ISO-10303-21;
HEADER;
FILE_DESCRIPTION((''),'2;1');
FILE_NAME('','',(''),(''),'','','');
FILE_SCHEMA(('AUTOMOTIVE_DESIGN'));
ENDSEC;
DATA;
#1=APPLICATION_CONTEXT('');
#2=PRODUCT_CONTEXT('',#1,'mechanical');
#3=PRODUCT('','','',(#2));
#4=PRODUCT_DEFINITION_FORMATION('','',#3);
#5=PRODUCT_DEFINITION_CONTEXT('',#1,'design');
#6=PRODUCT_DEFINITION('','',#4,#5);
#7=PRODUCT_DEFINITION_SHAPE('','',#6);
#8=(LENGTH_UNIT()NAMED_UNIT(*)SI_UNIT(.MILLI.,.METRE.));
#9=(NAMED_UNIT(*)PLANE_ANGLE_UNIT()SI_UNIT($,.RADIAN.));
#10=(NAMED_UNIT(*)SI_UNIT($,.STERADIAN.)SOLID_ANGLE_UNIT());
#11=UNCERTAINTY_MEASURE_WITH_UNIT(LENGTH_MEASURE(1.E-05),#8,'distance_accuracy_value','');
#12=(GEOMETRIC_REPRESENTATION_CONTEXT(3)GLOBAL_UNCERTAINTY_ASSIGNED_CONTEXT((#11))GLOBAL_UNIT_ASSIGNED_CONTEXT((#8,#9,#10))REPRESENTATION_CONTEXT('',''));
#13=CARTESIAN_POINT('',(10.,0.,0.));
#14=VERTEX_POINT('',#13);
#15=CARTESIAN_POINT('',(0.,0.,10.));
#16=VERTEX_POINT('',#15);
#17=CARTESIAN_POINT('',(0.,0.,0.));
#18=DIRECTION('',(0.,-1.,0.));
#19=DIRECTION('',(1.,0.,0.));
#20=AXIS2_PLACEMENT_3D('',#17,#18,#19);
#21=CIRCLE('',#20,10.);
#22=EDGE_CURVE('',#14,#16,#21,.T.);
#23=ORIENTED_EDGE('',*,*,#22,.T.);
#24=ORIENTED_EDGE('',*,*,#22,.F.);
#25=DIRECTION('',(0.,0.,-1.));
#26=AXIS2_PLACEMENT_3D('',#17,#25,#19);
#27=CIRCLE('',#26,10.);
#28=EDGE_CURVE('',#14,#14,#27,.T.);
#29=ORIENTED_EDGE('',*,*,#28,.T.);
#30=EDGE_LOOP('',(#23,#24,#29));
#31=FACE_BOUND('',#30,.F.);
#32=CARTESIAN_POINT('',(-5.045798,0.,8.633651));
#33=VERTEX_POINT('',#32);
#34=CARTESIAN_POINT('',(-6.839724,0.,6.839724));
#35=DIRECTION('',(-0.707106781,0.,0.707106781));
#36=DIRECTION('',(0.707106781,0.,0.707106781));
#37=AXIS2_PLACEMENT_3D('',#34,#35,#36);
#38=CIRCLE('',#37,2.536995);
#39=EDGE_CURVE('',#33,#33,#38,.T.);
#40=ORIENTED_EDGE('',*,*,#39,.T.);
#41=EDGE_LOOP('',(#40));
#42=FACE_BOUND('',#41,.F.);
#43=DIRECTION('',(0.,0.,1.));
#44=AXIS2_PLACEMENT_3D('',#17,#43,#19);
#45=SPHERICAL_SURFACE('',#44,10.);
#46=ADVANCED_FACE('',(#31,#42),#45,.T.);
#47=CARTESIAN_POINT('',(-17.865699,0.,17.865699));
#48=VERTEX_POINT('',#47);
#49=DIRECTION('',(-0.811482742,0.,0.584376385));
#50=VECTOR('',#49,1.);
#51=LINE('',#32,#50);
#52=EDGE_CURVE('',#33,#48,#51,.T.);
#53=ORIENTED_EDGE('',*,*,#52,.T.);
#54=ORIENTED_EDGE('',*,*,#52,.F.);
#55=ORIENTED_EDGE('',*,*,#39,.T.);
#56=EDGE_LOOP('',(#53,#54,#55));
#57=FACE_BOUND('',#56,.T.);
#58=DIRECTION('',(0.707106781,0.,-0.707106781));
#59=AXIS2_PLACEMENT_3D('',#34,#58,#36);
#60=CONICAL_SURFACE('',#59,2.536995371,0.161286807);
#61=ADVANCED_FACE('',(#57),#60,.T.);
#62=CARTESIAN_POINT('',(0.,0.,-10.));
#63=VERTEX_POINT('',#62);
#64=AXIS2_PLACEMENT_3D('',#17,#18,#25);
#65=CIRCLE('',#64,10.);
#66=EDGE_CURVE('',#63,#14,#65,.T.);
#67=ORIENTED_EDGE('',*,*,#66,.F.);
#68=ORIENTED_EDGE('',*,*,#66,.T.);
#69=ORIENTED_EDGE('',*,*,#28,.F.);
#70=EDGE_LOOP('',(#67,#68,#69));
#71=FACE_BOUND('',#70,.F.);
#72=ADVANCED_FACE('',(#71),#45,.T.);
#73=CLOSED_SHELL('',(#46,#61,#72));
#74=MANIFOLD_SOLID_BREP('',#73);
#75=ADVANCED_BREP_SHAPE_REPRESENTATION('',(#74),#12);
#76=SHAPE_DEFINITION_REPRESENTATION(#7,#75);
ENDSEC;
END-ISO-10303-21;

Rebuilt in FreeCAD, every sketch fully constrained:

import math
import FreeCAD as App
import Part
import Sketcher
from FreeCAD import Vector
Q = App.Units.Quantity

doc = App.newDocument("Part")
body = doc.addObject("PartDesign::Body", "Body")

# Sketch on XZ plane
sketch1 = body.newObject("Sketcher::SketchObject", "Sketch")
sketch1.AttachmentSupport = (doc.getObject("XZ_Plane"), [""])
sketch1.MapMode = "FlatFace"
sketch1.addGeometry([
    Part.ArcOfCircle(Part.Circle(Vector(0, 0, 0), Vector(0, 0, 1), 10), math.radians(-90), math.radians(0)),
    Part.ArcOfCircle(Part.Circle(Vector(0, 0, 0), Vector(0, 0, 1), 10), math.radians(0), math.radians(90)),
    Part.LineSegment(Vector(0, 10, 0), Vector(0, -10, 0)),
], False)
sketch1.addConstraint([
    Sketcher.Constraint("Tangent", 0, 2, 1, 1),
    Sketcher.Constraint("Coincident", 1, 2, 2, 1),
    Sketcher.Constraint("Coincident", 2, 2, 0, 1),
    Sketcher.Constraint("Vertical", 2),
    Sketcher.Constraint("Coincident", 0, 3, -1, 1),
    Sketcher.Constraint("Equal", 0, 1),
    Sketcher.Constraint("PointOnObject", 0, 2, -1),
    Sketcher.Constraint("PointOnObject", 1, 2, -2),
    Sketcher.Constraint("Radius", 0, 10.0),
])
revolution = body.newObject("PartDesign::Revolution", "Revolution")
revolution.Profile = sketch1
revolution.ReferenceAxis = (sketch1, ["V_Axis"])
revolution.Angle = 360

# Sketch on XZ plane
sketch2 = body.newObject("Sketcher::SketchObject", "Sketch001")
sketch2.AttachmentSupport = (doc.getObject("XZ_Plane"), [""])
sketch2.MapMode = "FlatFace"
sketch2.addGeometry([
    Part.ArcOfCircle(Part.Circle(Vector(0, 0, 0), Vector(0, 0, 1), 10), math.radians(120.3), math.radians(135)),
    Part.LineSegment(Vector(-5, 8.6, 0), Vector(-17.9, 17.9, 0)),
    Part.LineSegment(Vector(-17.9, 17.9, 0), Vector(-7.1, 7.1, 0)),
], False)
sketch2.addGeometry(Part.LineSegment(Vector(0, 0, 0), Vector(-17.9, 17.9, 0)), True)  # axis
sketch2.addConstraint([
    Sketcher.Constraint("Coincident", 0, 1, 1, 1),
    Sketcher.Constraint("Coincident", 1, 2, 2, 1),
    Sketcher.Constraint("Coincident", 2, 2, 0, 2),
    Sketcher.Constraint("Coincident", 0, 3, -1, 1),
    Sketcher.Constraint("Coincident", 3, 1, -1, 1),
    Sketcher.Constraint("Coincident", 3, 2, 1, 2),
    Sketcher.Constraint("Parallel", 2, 3),
    Sketcher.Constraint("Radius", 0, 10.0),
    Sketcher.Constraint("Angle", 2, Q("-45 deg")),
    Sketcher.Constraint("DistanceX", 1, 2, -1, 1, 17.865699),
    Sketcher.Constraint("DistanceX", 1, 2, 0, 1, 12.819901),
])
revolution2 = body.newObject("PartDesign::Revolution", "Revolution001")
revolution2.Profile = sketch2
revolution2.ReferenceAxis = (sketch2, ["Axis0"])
revolution2.Angle = 360

doc.recompute()
